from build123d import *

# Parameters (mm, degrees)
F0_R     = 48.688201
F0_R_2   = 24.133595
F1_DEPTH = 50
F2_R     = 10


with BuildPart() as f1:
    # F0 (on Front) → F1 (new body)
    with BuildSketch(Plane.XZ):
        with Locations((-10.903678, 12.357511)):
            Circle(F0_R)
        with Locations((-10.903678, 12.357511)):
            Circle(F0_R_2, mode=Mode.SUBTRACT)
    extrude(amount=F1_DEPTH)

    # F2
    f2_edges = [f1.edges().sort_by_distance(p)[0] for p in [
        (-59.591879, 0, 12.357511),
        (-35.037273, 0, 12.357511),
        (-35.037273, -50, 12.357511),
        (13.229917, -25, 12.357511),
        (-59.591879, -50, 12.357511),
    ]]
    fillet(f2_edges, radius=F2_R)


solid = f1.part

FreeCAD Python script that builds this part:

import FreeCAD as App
import Part
import Sketcher

V = App.Vector

doc = App.newDocument("Part")
body = doc.addObject("PartDesign::Body", "Body")

sketch1 = body.newObject("Sketcher::SketchObject", "Sketch")
sketch1.AttachmentSupport = (doc.getObject("XZ_Plane"), [""])
sketch1.MapMode = "FlatFace"
sketch1.addGeometry(Part.Circle(V(-11, 12, 0), V(0, 0, 1), 49), False)
sketch1.addGeometry(Part.Circle(V(-11, 12, 0), V(0, 0, 1), 24), False)
sketch1.addConstraint(Sketcher.Constraint("Coincident", 1, 3, 0, 3))
sketch1.addConstraint(Sketcher.Constraint("Diameter", 0, 97.376402))
sketch1.addConstraint(Sketcher.Constraint("Diameter", 1, 48.26719))
sketch1.addConstraint(Sketcher.Constraint("DistanceY", -1, 1, 0, 3, 12.357511))
sketch1.addConstraint(Sketcher.Constraint("DistanceX", 0, 3, -1, 1, 10.903678))
pad1 = body.newObject("PartDesign::Pad", "Pad")
pad1.Profile = sketch1
pad1.Length = 50
doc.recompute()

fillet = body.newObject("PartDesign::Fillet", "Fillet")
fillet.Base = (pad1, ["Edge1"])
fillet.UseAllEdges = True
fillet.Radius = 10

doc.recompute()
